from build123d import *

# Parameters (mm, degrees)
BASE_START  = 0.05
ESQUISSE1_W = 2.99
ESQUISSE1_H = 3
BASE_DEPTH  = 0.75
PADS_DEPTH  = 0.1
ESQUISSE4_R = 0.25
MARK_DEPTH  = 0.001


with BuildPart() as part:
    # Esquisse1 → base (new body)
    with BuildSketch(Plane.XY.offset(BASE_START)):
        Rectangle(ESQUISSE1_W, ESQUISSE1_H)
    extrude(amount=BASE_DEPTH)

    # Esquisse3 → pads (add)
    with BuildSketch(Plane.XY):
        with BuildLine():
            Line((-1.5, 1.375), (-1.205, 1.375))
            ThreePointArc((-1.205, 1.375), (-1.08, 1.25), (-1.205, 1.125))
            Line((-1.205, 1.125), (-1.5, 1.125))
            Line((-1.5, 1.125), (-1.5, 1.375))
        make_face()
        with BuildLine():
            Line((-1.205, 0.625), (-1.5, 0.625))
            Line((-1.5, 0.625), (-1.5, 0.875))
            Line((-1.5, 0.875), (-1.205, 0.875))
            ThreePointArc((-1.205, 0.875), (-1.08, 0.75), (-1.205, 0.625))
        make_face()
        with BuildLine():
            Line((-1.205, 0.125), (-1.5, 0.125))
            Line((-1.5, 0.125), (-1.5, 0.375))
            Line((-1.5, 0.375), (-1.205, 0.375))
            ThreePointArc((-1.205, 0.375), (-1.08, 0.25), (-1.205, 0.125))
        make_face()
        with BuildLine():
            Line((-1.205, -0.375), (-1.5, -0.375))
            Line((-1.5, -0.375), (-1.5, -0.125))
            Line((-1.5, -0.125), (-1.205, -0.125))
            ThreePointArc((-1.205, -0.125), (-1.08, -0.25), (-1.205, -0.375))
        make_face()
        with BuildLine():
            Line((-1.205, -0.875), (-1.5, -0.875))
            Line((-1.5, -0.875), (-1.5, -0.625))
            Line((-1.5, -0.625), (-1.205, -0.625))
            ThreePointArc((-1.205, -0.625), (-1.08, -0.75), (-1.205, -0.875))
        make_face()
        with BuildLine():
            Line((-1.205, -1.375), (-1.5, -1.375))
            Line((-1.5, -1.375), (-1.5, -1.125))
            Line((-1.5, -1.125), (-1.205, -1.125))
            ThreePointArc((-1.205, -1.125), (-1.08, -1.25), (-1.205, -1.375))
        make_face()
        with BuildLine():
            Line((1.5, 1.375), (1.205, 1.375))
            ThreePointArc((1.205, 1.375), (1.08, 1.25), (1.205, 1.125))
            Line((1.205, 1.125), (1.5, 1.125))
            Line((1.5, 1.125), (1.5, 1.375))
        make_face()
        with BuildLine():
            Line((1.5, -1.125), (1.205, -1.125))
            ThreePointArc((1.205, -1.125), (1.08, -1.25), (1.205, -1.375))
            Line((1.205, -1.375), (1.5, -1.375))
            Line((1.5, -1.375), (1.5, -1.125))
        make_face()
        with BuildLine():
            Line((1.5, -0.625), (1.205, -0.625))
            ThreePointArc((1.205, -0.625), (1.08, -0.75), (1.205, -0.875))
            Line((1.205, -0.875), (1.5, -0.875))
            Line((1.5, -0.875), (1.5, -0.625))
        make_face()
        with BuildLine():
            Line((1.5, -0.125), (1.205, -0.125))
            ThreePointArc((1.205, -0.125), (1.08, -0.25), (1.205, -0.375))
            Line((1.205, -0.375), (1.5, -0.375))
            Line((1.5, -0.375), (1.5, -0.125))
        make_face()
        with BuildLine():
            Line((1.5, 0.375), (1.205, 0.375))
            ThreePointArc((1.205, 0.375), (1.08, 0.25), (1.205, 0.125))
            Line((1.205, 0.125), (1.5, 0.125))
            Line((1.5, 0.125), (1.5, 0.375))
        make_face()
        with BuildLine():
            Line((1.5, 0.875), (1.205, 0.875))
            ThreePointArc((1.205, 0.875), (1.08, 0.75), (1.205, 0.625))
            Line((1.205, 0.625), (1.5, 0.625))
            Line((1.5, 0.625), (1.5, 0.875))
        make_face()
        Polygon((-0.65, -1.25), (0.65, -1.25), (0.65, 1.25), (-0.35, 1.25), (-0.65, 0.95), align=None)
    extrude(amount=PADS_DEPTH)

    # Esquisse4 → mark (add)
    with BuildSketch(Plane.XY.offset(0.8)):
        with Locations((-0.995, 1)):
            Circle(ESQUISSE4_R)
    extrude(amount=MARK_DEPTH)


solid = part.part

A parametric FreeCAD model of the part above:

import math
import FreeCAD as App
import Part
import Sketcher
Q = App.Units.Quantity


def add_polygon(sketch, points):
    """Adds a closed chain of lines whose ends are joined by coincident constraints."""
    first, n = sketch.GeometryCount, len(points)
    for a, b in zip(points, points[1:] + points[:1]):
        sketch.addGeometry(Part.LineSegment(App.Vector(*a, 0), App.Vector(*b, 0)), False)
    for i in range(n):
        sketch.addConstraint(Sketcher.Constraint("Coincident", first + i, 2, first + (i + 1) % n, 1))

doc = App.newDocument("Part")
body = doc.addObject("PartDesign::Body", "Body")

# Sketch on XY plane
sketch1 = body.newObject("Sketcher::SketchObject", "Sketch")
sketch1.AttachmentSupport = (doc.getObject("XY_Plane"), [""])
sketch1.MapMode = "FlatFace"
sketch1.AttachmentOffset = App.Placement(App.Vector(0, 0, 0.05), App.Rotation())
add_polygon(sketch1, [(-1.5, 1.5), (-1.5, -1.5), (1.5, -1.5), (1.5, 1.5)])  # lines 0-3
sketch1.addConstraint([
    Sketcher.Constraint("Vertical", 0),
    Sketcher.Constraint("Horizontal", 1),
    Sketcher.Constraint("Vertical", 2),
    Sketcher.Constraint("Horizontal", 3),
    Sketcher.Constraint("Symmetric", 0, 2, 2, 2, -1, 1),
    Sketcher.Constraint("DistanceY", 0, 2, 0, 1, Q("3 mm")),
    Sketcher.Constraint("DistanceX", 1, 1, 1, 2, Q("2.99 mm")),
])
pad1 = body.newObject("PartDesign::Pad", "Pad")
pad1.Profile = sketch1
pad1.Length = 0.75

# Sketch on XY plane
sketch2 = body.newObject("Sketcher::SketchObject", "Sketch001")
sketch2.AttachmentSupport = (doc.getObject("XY_Plane"), [""])
sketch2.MapMode = "FlatFace"
sketch2.addGeometry(Part.LineSegment(App.Vector(-1.21, 1.38, 0), App.Vector(-1.5, 1.38, 0)), False)  # 0
sketch2.addGeometry(Part.LineSegment(App.Vector(-1.5, 1.38, 0), App.Vector(-1.5, 1.12, 0)), False)  # 1
sketch2.addGeometry(Part.LineSegment(App.Vector(-1.5, 1.12, 0), App.Vector(-1.21, 1.12, 0)), False)  # 2
sketch2.addGeometry(Part.ArcOfCircle(Part.Circle(App.Vector(-1.21, 1.25, 0), App.Vector(0, 0, 1), 0.12), math.radians(-90), math.radians(90)), False)  # 3
sketch2.addGeometry(Part.LineSegment(App.Vector(-1.5, 0.62, 0), App.Vector(-1.21, 0.62, 0)), False)  # 4
sketch2.addGeometry(Part.ArcOfCircle(Part.Circle(App.Vector(-1.21, 0.75, 0), App.Vector(0, 0, 1), 0.12), math.radians(-90), math.radians(90)), False)  # 5
sketch2.addGeometry(Part.LineSegment(App.Vector(-1.21, 0.88, 0), App.Vector(-1.5, 0.88, 0)), False)  # 6
sketch2.addGeometry(Part.LineSegment(App.Vector(-1.5, 0.88, 0), App.Vector(-1.5, 0.62, 0)), False)  # 7
sketch2.addGeometry(Part.LineSegment(App.Vector(-1.5, 0.12, 0), App.Vector(-1.21, 0.12, 0)), False)  # 8
sketch2.addGeometry(Part.ArcOfCircle(Part.Circle(App.Vector(-1.21, 0.25, 0), App.Vector(0, 0, 1), 0.12), math.radians(-90), math.radians(90)), False)  # 9
sketch2.addGeometry(Part.LineSegment(App.Vector(-1.21, 0.38, 0), App.Vector(-1.5, 0.38, 0)), False)  # 10
sketch2.addGeometry(Part.LineSegment(App.Vector(-1.5, 0.38, 0), App.Vector(-1.5, 0.12, 0)), False)  # 11
sketch2.addGeometry(Part.LineSegment(App.Vector(-1.5, -0.38, 0), App.Vector(-1.21, -0.38, 0)), False)  # 12
sketch2.addGeometry(Part.ArcOfCircle(Part.Circle(App.Vector(-1.21, -0.25, 0), App.Vector(0, 0, 1), 0.12), math.radians(-90), math.radians(90)), False)  # 13
sketch2.addGeometry(Part.LineSegment(App.Vector(-1.21, -0.12, 0), App.Vector(-1.5, -0.12, 0)), False)  # 14
sketch2.addGeometry(Part.LineSegment(App.Vector(-1.5, -0.12, 0), App.Vector(-1.5, -0.38, 0)), False)  # 15
sketch2.addGeometry(Part.LineSegment(App.Vector(-1.5, -0.88, 0), App.Vector(-1.21, -0.88, 0)), False)  # 16
sketch2.addGeometry(Part.ArcOfCircle(Part.Circle(App.Vector(-1.21, -0.75, 0), App.Vector(0, 0, 1), 0.12), math.radians(-90), math.radians(90)), False)  # 17
sketch2.addGeometry(Part.LineSegment(App.Vector(-1.21, -0.62, 0), App.Vector(-1.5, -0.62, 0)), False)  # 18
sketch2.addGeometry(Part.LineSegment(App.Vector(-1.5, -0.62, 0), App.Vector(-1.5, -0.88, 0)), False)  # 19
sketch2.addGeometry(Part.LineSegment(App.Vector(-1.5, -1.38, 0), App.Vector(-1.21, -1.38, 0)), False)  # 20
sketch2.addGeometry(Part.ArcOfCircle(Part.Circle(App.Vector(-1.21, -1.25, 0), App.Vector(0, 0, 1), 0.12), math.radians(-90), math.radians(90)), False)  # 21
sketch2.addGeometry(Part.LineSegment(App.Vector(-1.21, -1.12, 0), App.Vector(-1.5, -1.12, 0)), False)  # 22
sketch2.addGeometry(Part.LineSegment(App.Vector(-1.5, -1.12, 0), App.Vector(-1.5, -1.38, 0)), False)  # 23
sketch2.addGeometry(Part.LineSegment(App.Vector(1.5, 1.38, 0), App.Vector(1.21, 1.38, 0)), False)  # 24
sketch2.addGeometry(Part.ArcOfCircle(Part.Circle(App.Vector(1.21, 1.25, 0), App.Vector(0, 0, 1), 0.12), math.radians(90), math.radians(270)), False)  # 25
sketch2.addGeometry(Part.LineSegment(App.Vector(1.21, 1.12, 0), App.Vector(1.5, 1.12, 0)), False)  # 26
sketch2.addGeometry(Part.LineSegment(App.Vector(1.5, 1.12, 0), App.Vector(1.5, 1.38, 0)), False)  # 27
sketch2.addGeometry(Part.LineSegment(App.Vector(1.5, -1.12, 0), App.Vector(1.21, -1.12, 0)), False)  # 28
sketch2.addGeometry(Part.ArcOfCircle(Part.Circle(App.Vector(1.21, -1.25, 0), App.Vector(0, 0, 1), 0.12), math.radians(90), math.radians(270)), False)  # 29
sketch2.addGeometry(Part.LineSegment(App.Vector(1.21, -1.38, 0), App.Vector(1.5, -1.38, 0)), False)  # 30
sketch2.addGeometry(Part.LineSegment(App.Vector(1.5, -1.38, 0), App.Vector(1.5, -1.12, 0)), False)  # 31
sketch2.addGeometry(Part.LineSegment(App.Vector(1.5, -0.62, 0), App.Vector(1.21, -0.62, 0)), False)  # 32
sketch2.addGeometry(Part.ArcOfCircle(Part.Circle(App.Vector(1.21, -0.75, 0), App.Vector(0, 0, 1), 0.12), math.radians(90), math.radians(270)), False)  # 33
sketch2.addGeometry(Part.LineSegment(App.Vector(1.21, -0.88, 0), App.Vector(1.5, -0.88, 0)), False)  # 34
sketch2.addGeometry(Part.LineSegment(App.Vector(1.5, -0.88, 0), App.Vector(1.5, -0.62, 0)), False)  # 35
sketch2.addGeometry(Part.LineSegment(App.Vector(1.5, -0.12, 0), App.Vector(1.21, -0.12, 0)), False)  # 36
sketch2.addGeometry(Part.ArcOfCircle(Part.Circle(App.Vector(1.21, -0.25, 0), App.Vector(0, 0, 1), 0.12), math.radians(90), math.radians(270)), False)  # 37
sketch2.addGeometry(Part.LineSegment(App.Vector(1.21, -0.38, 0), App.Vector(1.5, -0.38, 0)), False)  # 38
sketch2.addGeometry(Part.LineSegment(App.Vector(1.5, -0.38, 0), App.Vector(1.5, -0.12, 0)), False)  # 39
sketch2.addGeometry(Part.LineSegment(App.Vector(1.5, 0.38, 0), App.Vector(1.21, 0.38, 0)), False)  # 40
sketch2.addGeometry(Part.ArcOfCircle(Part.Circle(App.Vector(1.21, 0.25, 0), App.Vector(0, 0, 1), 0.12), math.radians(90), math.radians(270)), False)  # 41
sketch2.addGeometry(Part.LineSegment(App.Vector(1.21, 0.12, 0), App.Vector(1.5, 0.12, 0)), False)  # 42
sketch2.addGeometry(Part.LineSegment(App.Vector(1.5, 0.12, 0), App.Vector(1.5, 0.38, 0)), False)  # 43
sketch2.addGeometry(Part.LineSegment(App.Vector(1.5, 0.88, 0), App.Vector(1.21, 0.88, 0)), False)  # 44
sketch2.addGeometry(Part.ArcOfCircle(Part.Circle(App.Vector(1.21, 0.75, 0), App.Vector(0, 0, 1), 0.12), math.radians(90), math.radians(270)), False)  # 45
sketch2.addGeometry(Part.LineSegment(App.Vector(1.21, 0.62, 0), App.Vector(1.5, 0.62, 0)), False)  # 46
sketch2.addGeometry(Part.LineSegment(App.Vector(1.5, 0.62, 0), App.Vector(1.5, 0.88, 0)), False)  # 47
add_polygon(sketch2, [(-0.65, -1.25), (0.65, -1.25), (0.65, 1.25), (-0.35, 1.25), (-0.65, 0.95)])  # lines 48-52
sketch2.addConstraint([
    Sketcher.Constraint("Coincident", 0, 2, 1, 1),
    Sketcher.Constraint("Coincident", 1, 2, 2, 1),
    Sketcher.Constraint("Tangent", 2, 2, 3, 1),
    Sketcher.Constraint("Tangent", 3, 2, 0, 1),
    Sketcher.Constraint("Tangent", 4, 2, 5, 1),
    Sketcher.Constraint("Tangent", 5, 2, 6, 1),
    Sketcher.Constraint("Coincident", 6, 2, 7, 1),
    Sketcher.Constraint("Coincident", 7, 2, 4, 1),
    Sketcher.Constraint("Tangent", 8, 2, 9, 1),
    Sketcher.Constraint("Tangent", 9, 2, 10, 1),
    Sketcher.Constraint("Coincident", 10, 2, 11, 1),
    Sketcher.Constraint("Coincident", 11, 2, 8, 1),
    Sketcher.Constraint("Tangent", 12, 2, 13, 1),
    Sketcher.Constraint("Tangent", 13, 2, 14, 1),
    Sketcher.Constraint("Coincident", 14, 2, 15, 1),
    Sketcher.Constraint("Coincident", 15, 2, 12, 1),
    Sketcher.Constraint("Tangent", 16, 2, 17, 1),
    Sketcher.Constraint("Tangent", 17, 2, 18, 1),
    Sketcher.Constraint("Coincident", 18, 2, 19, 1),
    Sketcher.Constraint("Coincident", 19, 2, 16, 1),
    Sketcher.Constraint("Tangent", 20, 2, 21, 1),
    Sketcher.Constraint("Tangent", 21, 2, 22, 1),
    Sketcher.Constraint("Coincident", 22, 2, 23, 1),
    Sketcher.Constraint("Coincident", 23, 2, 20, 1),
    Sketcher.Constraint("Tangent", 24, 2, 25, 1),
    Sketcher.Constraint("Tangent", 25, 2, 26, 1),
    Sketcher.Constraint("Coincident", 26, 2, 27, 1),
    Sketcher.Constraint("Coincident", 27, 2, 24, 1),
    Sketcher.Constraint("Tangent", 28, 2, 29, 1),
    Sketcher.Constraint("Tangent", 29, 2, 30, 1),
    Sketcher.Constraint("Coincident", 30, 2, 31, 1),
    Sketcher.Constraint("Coincident", 31, 2, 28, 1),
    Sketcher.Constraint("Tangent", 32, 2, 33, 1),
    Sketcher.Constraint("Tangent", 33, 2, 34, 1),
    Sketcher.Constraint("Coincident", 34, 2, 35, 1),
    Sketcher.Constraint("Coincident", 35, 2, 32, 1),
    Sketcher.Constraint("Tangent", 36, 2, 37, 1),
    Sketcher.Constraint("Tangent", 37, 2, 38, 1),
    Sketcher.Constraint("Coincident", 38, 2, 39, 1),
    Sketcher.Constraint("Coincident", 39, 2, 36, 1),
    Sketcher.Constraint("Tangent", 40, 2, 41, 1),
    Sketcher.Constraint("Tangent", 41, 2, 42, 1),
    Sketcher.Constraint("Coincident", 42, 2, 43, 1),
    Sketcher.Constraint("Coincident", 43, 2, 40, 1),
    Sketcher.Constraint("Tangent", 44, 2, 45, 1),
    Sketcher.Constraint("Tangent", 45, 2, 46, 1),
    Sketcher.Constraint("Coincident", 46, 2, 47, 1),
    Sketcher.Constraint("Coincident", 47, 2, 44, 1),
    Sketcher.Constraint("Horizontal", 0),
    Sketcher.Constraint("Vertical", 1),
    Sketcher.Constraint("Horizontal", 2),
    Sketcher.Constraint("Horizontal", 4),
    Sketcher.Constraint("Horizontal", 6),
    Sketcher.Constraint("Vertical", 7),
    Sketcher.Constraint("Horizontal", 8),
    Sketcher.Constraint("Horizontal", 10),
    Sketcher.Constraint("Vertical", 11),
    Sketcher.Constraint("Horizontal", 12),
    Sketcher.Constraint("Horizontal", 14),
    Sketcher.Constraint("Vertical", 15),
    Sketcher.Constraint("Horizontal", 16),
    Sketcher.Constraint("Horizontal", 18),
    Sketcher.Constraint("Vertical", 19),
    Sketcher.Constraint("Horizontal", 20),
    Sketcher.Constraint("Horizontal", 22),
    Sketcher.Constraint("Vertical", 23),
    Sketcher.Constraint("Horizontal", 24),
    Sketcher.Constraint("Horizontal", 26),
    Sketcher.Constraint("Vertical", 27),
    Sketcher.Constraint("Horizontal", 28),
    Sketcher.Constraint("Horizontal", 30),
    Sketcher.Constraint("Vertical", 31),
    Sketcher.Constraint("Horizontal", 32),
    Sketcher.Constraint("Horizontal", 34),
    Sketcher.Constraint("Vertical", 35),
    Sketcher.Constraint("Horizontal", 36),
    Sketcher.Constraint("Horizontal", 38),
    Sketcher.Constraint("Vertical", 39),
    Sketcher.Constraint("Horizontal", 40),
    Sketcher.Constraint("Horizontal", 42),
    Sketcher.Constraint("Vertical", 43),
    Sketcher.Constraint("Horizontal", 44),
    Sketcher.Constraint("Horizontal", 46),
    Sketcher.Constraint("Vertical", 47),
    Sketcher.Constraint("Horizontal", 48),
    Sketcher.Constraint("Vertical", 49),
    Sketcher.Constraint("Horizontal", 50),
    Sketcher.Constraint("Vertical", 52),
    Sketcher.Constraint("Equal", 3, 5),
    Sketcher.Constraint("Equal", 5, 9),
    Sketcher.Constraint("Equal", 9, 13),
    Sketcher.Constraint("Equal", 13, 17),
    Sketcher.Constraint("Equal", 17, 21),
    Sketcher.Constraint("Equal", 21, 25),
    Sketcher.Constraint("Equal", 25, 29),
    Sketcher.Constraint("Equal", 29, 33),
    Sketcher.Constraint("Equal", 33, 37),
    Sketcher.Constraint("Equal", 37, 41),
    Sketcher.Constraint("Equal", 41, 45),
    Sketcher.Constraint("Symmetric", 21, 3, 25, 3, -1, 1),
    Sketcher.Constraint("Symmetric", 3, 3, 29, 3, -1, 1),
    Sketcher.Constraint("Symmetric", 5, 3, 33, 3, -1, 1),
    Sketcher.Constraint("Symmetric", 9, 3, 37, 3, -1, 1),
    Sketcher.Constraint("Symmetric", 13, 3, 41, 3, -1, 1),
    Sketcher.Constraint("Symmetric", 17, 3, 45, 3, -1, 1),
    Sketcher.Constraint("Symmetric", 49, 2, 52, 2, -1, 1),
    Sketcher.Constraint("Symmetric", 3, 3, 25, 3, -2),
    Sketcher.Constraint("Symmetric", 17, 3, 33, 3, -2),
    Sketcher.Constraint("Symmetric", 13, 3, 37, 3, -2),
    Sketcher.Constraint("Horizontal", 29, 3, 48, 2),
    Sketcher.Constraint("Vertical", 3, 3, 5, 3),
    Sketcher.Constraint("Vertical", 5, 3, 9, 3),
    Sketcher.Constraint("Vertical", 1, 2, 6, 2),
    Sketcher.Constraint("Vertical", 7, 2, 10, 2),
    Sketcher.Constraint("Vertical", 11, 2, 14, 2),
    Sketcher.Constraint("Vertical", 15, 2, 18, 2),
    Sketcher.Constraint("Vertical", 19, 2, 22, 2),
    Sketcher.Constraint("Vertical", 27, 2, 30, 2),
    Sketcher.Constraint("Vertical", 31, 2, 34, 2),
    Sketcher.Constraint("Vertical", 35, 2, 38, 2),
    Sketcher.Constraint("Vertical", 39, 2, 42, 2),
    Sketcher.Constraint("Vertical", 43, 2, 46, 2),
    Sketcher.Constraint("Equal", 22, 24),
    Sketcher.Constraint("DistanceX", 50, 2, 50, 1, Q("1 mm")),
    Sketcher.Constraint("Angle", 51, Q("-135 deg")),
    Sketcher.Constraint("DistanceX", 48, 1, 48, 2, Q("1.3 mm")),
    Sketcher.Constraint("DistanceY", 49, 1, 49, 2, Q("2.5 mm")),
    Sketcher.Constraint("Radius", 3, Q("0.125 mm")),
    Sketcher.Constraint("DistanceX", 0, 2, -1, 1, Q("1.5 mm")),
    Sketcher.Constraint("DistanceX", 0, 2, 0, 1, Q("0.295 mm")),
    Sketcher.Constraint("DistanceY", -1, 1, 5, 3, Q("0.75 mm")),
    Sketcher.Constraint("DistanceY", -1, 1, 9, 3, Q("0.25 mm")),
])
pad2 = body.newObject("PartDesign::Pad", "Pad001")
pad2.Profile = sketch2
pad2.Length = 0.1

# Sketch on XY plane
sketch3 = body.newObject("Sketcher::SketchObject", "Sketch002")
sketch3.AttachmentSupport = (doc.getObject("XY_Plane"), [""])
sketch3.MapMode = "FlatFace"
sketch3.AttachmentOffset = App.Placement(App.Vector(0, 0, 0.8), App.Rotation())
sketch3.addGeometry(Part.Circle(App.Vector(-0.99, 1, 0), App.Vector(0, 0, 1), 0.25), False)
sketch3.addConstraint([
    Sketcher.Constraint("Diameter", 0, Q("0.5 mm")),
    Sketcher.Constraint("DistanceY", -1, 1, 0, 3, Q("1 mm")),
    Sketcher.Constraint("DistanceX", 0, 3, -1, 1, Q("0.995 mm")),
])
pad3 = body.newObject("PartDesign::Pad", "Pad002")
pad3.Profile = sketch3
pad3.Length = 0.001

doc.recompute()
